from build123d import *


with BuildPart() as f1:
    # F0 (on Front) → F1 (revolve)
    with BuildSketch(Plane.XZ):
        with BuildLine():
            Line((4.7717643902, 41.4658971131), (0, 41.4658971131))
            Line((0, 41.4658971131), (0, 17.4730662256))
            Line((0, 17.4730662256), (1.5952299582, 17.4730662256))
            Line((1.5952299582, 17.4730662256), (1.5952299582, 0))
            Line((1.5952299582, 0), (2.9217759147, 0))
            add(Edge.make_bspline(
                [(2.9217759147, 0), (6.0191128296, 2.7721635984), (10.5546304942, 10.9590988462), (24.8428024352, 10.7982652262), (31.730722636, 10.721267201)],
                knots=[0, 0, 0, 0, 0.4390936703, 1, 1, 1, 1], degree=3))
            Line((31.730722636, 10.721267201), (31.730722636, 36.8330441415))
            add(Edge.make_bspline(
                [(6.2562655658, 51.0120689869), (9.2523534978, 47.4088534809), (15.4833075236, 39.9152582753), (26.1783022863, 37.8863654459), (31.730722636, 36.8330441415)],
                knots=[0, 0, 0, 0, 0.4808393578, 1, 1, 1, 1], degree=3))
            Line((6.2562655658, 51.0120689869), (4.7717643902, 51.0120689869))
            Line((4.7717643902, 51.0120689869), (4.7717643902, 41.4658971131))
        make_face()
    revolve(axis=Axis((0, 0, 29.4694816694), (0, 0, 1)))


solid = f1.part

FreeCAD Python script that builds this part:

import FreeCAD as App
import Part
import Sketcher
Q = App.Units.Quantity

doc = App.newDocument("Part")
body = doc.addObject("PartDesign::Body", "Body")

sketch1 = doc.addObject("Sketcher::SketchObject", "Sketch")
body.addObject(sketch1)
sketch1.AttachmentSupport = (doc.XZ_Plane, [""])
sketch1.MapMode = "FlatFace"
sketch1.addGeometry(Part.LineSegment(App.Vector(4.771764, 41.465897, 0), App.Vector(0, 41.465897, 0)), False)
sketch1.addGeometry(Part.LineSegment(App.Vector(0, 41.465897, 0), App.Vector(0, 17.473066, 0)), False)
sketch1.addGeometry(Part.LineSegment(App.Vector(0, 17.473066, 0), App.Vector(1.59523, 17.473066, 0)), False)
sketch1.addGeometry(Part.LineSegment(App.Vector(1.59523, 17.473066, 0), App.Vector(1.59523, 0, 0)), False)
sketch1.addGeometry(Part.LineSegment(App.Vector(1.59523, 0, 0), App.Vector(2.921776, 0, 0)), False)
sketch1.addGeometry(Part.BSplineCurve([App.Vector(2.921776, 0, 0), App.Vector(6.019113, 2.772164, 0), App.Vector(10.55463, 10.959099, 0), App.Vector(24.842802, 10.798265, 0), App.Vector(31.730723, 10.721267, 0)], [4, 1, 4], [0, 0.43909367, 1], False, 3, [1, 1, 1, 1, 1], False), False)
sketch1.addGeometry(Part.LineSegment(App.Vector(31.730723, 10.721267, 0), App.Vector(31.730723, 36.833044, 0)), False)
sketch1.addGeometry(Part.BSplineCurve([App.Vector(6.256266, 51.012069, 0), App.Vector(9.252353, 47.408853, 0), App.Vector(15.483308, 39.915258, 0), App.Vector(26.178302, 37.886365, 0), App.Vector(31.730723, 36.833044, 0)], [4, 1, 4], [0, 0.480839358, 1], False, 3, [1, 1, 1, 1, 1], False), False)
sketch1.addGeometry(Part.LineSegment(App.Vector(6.256266, 51.012069, 0), App.Vector(4.771764, 51.012069, 0)), False)
sketch1.addGeometry(Part.LineSegment(App.Vector(4.771764, 51.012069, 0), App.Vector(4.771764, 41.465897, 0)), False)
sketch1.addConstraint(Sketcher.Constraint("Block", 5))
sketch1.addConstraint(Sketcher.Constraint("Block", 7))
sketch1.addConstraint(Sketcher.Constraint("Coincident", 0, 2, 1, 1))
sketch1.addConstraint(Sketcher.Constraint("Coincident", 1, 2, 2, 1))
sketch1.addConstraint(Sketcher.Constraint("Coincident", 2, 2, 3, 1))
sketch1.addConstraint(Sketcher.Constraint("Coincident", 3, 2, 4, 1))
sketch1.addConstraint(Sketcher.Constraint("Coincident", 4, 2, 5, 1))
sketch1.addConstraint(Sketcher.Constraint("Coincident", 5, 2, 6, 1))
sketch1.addConstraint(Sketcher.Constraint("Coincident", 6, 2, 7, 2))
sketch1.addConstraint(Sketcher.Constraint("Coincident", 7, 1, 8, 1))
sketch1.addConstraint(Sketcher.Constraint("Coincident", 8, 2, 9, 1))
sketch1.addConstraint(Sketcher.Constraint("Coincident", 9, 2, 0, 1))
sketch1.addConstraint(Sketcher.Constraint("Horizontal", 0))
sketch1.addConstraint(Sketcher.Constraint("Vertical", 1))
sketch1.addConstraint(Sketcher.Constraint("Horizontal", 2))
sketch1.addConstraint(Sketcher.Constraint("Vertical", 3))
sketch1.addConstraint(Sketcher.Constraint("Horizontal", 4))
sketch1.addConstraint(Sketcher.Constraint("Horizontal", 8))
sketch1.addConstraint(Sketcher.Constraint("Vertical", 9))
sketch1.addConstraint(Sketcher.Constraint("PointOnObject", 0, 2, -2))
sketch1.addConstraint(Sketcher.Constraint("DistanceX", 8, 2, 8, 1, Q("1.484501 mm")))
sketch1.addConstraint(Sketcher.Constraint("DistanceX", 2, 1, 2, 2, Q("1.59523 mm")))
sketch1.addConstraint(Sketcher.Constraint("DistanceY", 1, 2, 1, 1, Q("23.992831 mm")))
sketch1.addConstraint(Sketcher.Constraint("DistanceY", 9, 2, 9, 1, Q("9.546172 mm")))
revolution = doc.addObject("PartDesign::Revolution", "Revolution")
body.addObject(revolution)
revolution.Profile = sketch1
revolution.ReferenceAxis = (sketch1, ["V_Axis"])
revolution.Angle = 360

doc.recompute()
